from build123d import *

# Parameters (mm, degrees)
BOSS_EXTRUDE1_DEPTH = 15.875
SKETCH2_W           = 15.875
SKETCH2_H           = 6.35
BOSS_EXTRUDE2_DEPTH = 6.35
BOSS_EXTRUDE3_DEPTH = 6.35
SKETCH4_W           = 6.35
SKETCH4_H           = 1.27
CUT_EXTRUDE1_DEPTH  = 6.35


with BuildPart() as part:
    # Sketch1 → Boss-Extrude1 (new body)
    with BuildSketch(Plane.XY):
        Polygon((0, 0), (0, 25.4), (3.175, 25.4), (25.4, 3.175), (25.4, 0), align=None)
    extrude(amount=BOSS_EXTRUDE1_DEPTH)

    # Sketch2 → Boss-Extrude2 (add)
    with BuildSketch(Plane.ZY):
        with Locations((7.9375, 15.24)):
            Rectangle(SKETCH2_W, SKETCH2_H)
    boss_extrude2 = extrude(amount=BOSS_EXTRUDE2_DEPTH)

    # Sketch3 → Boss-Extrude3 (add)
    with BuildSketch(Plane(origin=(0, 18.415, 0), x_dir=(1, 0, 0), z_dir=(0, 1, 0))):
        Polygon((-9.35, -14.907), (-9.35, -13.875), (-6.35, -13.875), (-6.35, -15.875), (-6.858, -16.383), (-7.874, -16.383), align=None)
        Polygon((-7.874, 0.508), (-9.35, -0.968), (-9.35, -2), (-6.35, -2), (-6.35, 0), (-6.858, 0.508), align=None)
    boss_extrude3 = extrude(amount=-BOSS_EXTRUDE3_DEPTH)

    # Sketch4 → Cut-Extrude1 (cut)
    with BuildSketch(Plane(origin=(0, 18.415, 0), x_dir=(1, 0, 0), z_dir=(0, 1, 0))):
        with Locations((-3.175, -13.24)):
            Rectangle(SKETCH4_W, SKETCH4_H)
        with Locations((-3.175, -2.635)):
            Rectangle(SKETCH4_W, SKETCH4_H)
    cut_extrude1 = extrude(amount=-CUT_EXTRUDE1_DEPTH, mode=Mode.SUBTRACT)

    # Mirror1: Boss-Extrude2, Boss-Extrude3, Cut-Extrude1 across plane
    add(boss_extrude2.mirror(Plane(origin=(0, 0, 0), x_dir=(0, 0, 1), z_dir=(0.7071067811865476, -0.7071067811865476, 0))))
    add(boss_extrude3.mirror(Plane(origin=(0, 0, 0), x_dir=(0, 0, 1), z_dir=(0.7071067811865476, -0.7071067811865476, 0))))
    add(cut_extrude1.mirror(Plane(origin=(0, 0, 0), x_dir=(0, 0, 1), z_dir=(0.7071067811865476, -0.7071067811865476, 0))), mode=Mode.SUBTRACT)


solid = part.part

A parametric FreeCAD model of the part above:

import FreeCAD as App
import Part
import Sketcher
Q = App.Units.Quantity

doc = App.newDocument("Part")
body = doc.addObject("PartDesign::Body", "Body")

# Sketch on XY plane
sketch1 = body.newObject("Sketcher::SketchObject", "Sketch")
sketch1.AttachmentSupport = (doc.getObject("XY_Plane"), [""])
sketch1.MapMode = "FlatFace"
sketch1.addGeometry([
    Part.LineSegment(App.Vector(0, 25.4, 0), App.Vector(0, 0, 0)),  # 0
    Part.LineSegment(App.Vector(0, 0, 0), App.Vector(25.4, 0, 0)),  # 1
    Part.LineSegment(App.Vector(25.4, 0, 0), App.Vector(25.4, 3.2, 0)),  # 2
    Part.LineSegment(App.Vector(25.4, 3.2, 0), App.Vector(3.2, 25.4, 0)),  # 3
    Part.LineSegment(App.Vector(3.2, 25.4, 0), App.Vector(0, 25.4, 0)),  # 4
], False)
sketch1.addConstraint([
    Sketcher.Constraint("Coincident", 0, 2, 1, 1),
    Sketcher.Constraint("Coincident", 1, 2, 2, 1),
    Sketcher.Constraint("Coincident", 2, 2, 3, 1),
    Sketcher.Constraint("Coincident", 3, 2, 4, 1),
    Sketcher.Constraint("Coincident", 4, 2, 0, 1),
    Sketcher.Constraint("Vertical", 0),
    Sketcher.Constraint("Horizontal", 1),
    Sketcher.Constraint("Vertical", 2),
    Sketcher.Constraint("Horizontal", 4),
    Sketcher.Constraint("Coincident", 0, 2, -1, 1),
    Sketcher.Constraint("Equal", 1, 0),
    Sketcher.Constraint("Equal", 4, 2),
    Sketcher.Constraint("DistanceX", 1, 1, 1, 2, Q("1 in")),
    Sketcher.Constraint("DistanceX", 4, 2, 4, 1, Q("0.125 in")),
])
pad1 = body.newObject("PartDesign::Pad", "Pad")
pad1.Profile = sketch1
pad1.Length = Q("0.625 in")

# Sketch on YZ plane
sketch2 = body.newObject("Sketcher::SketchObject", "Sketch001")
sketch2.AttachmentSupport = (doc.getObject("YZ_Plane"), [""])
sketch2.MapMode = "FlatFace"
sketch2.addGeometry([
    Part.LineSegment(App.Vector(18, 0, 0), App.Vector(12, 0, 0)),
    Part.LineSegment(App.Vector(12, 0, 0), App.Vector(12, 16, 0)),
    Part.LineSegment(App.Vector(12, 16, 0), App.Vector(18, 16, 0)),
    Part.LineSegment(App.Vector(18, 16, 0), App.Vector(18, 0, 0)),
], False)
sketch2.addConstraint([
    Sketcher.Constraint("Coincident", 0, 2, 1, 1),
    Sketcher.Constraint("Coincident", 1, 2, 2, 1),
    Sketcher.Constraint("Coincident", 2, 2, 3, 1),
    Sketcher.Constraint("Coincident", 3, 2, 0, 1),
    Sketcher.Constraint("Horizontal", 0),
    Sketcher.Constraint("Vertical", 1),
    Sketcher.Constraint("Horizontal", 2),
    Sketcher.Constraint("Vertical", 3),
    Sketcher.Constraint("PointOnObject", 0, 2, -1),
    Sketcher.Constraint("DistanceX", 0, 2, 0, 1, Q("0.25 in")),
    Sketcher.Constraint("DistanceY", 1, 1, 1, 2, Q("0.625 in")),
    Sketcher.Constraint("DistanceX", -1, 1, 0, 2, Q("0.475 in")),
])
pad2 = body.newObject("PartDesign::Pad", "Pad001")
pad2.Profile = sketch2
pad2.Length = Q("0.25 in")
pad2.Reversed = True

# Sketch on XZ plane
sketch3 = body.newObject("Sketcher::SketchObject", "Sketch002")
sketch3.AttachmentSupport = (doc.getObject("XZ_Plane"), [""])
sketch3.MapMode = "FlatFace"
sketch3.AttachmentOffset = App.Placement(App.Vector(0, 0, -0.725 * 25.4), App.Rotation())
sketch3.addGeometry([
    Part.LineSegment(App.Vector(-9.3, 13.9, 0), App.Vector(-9.3, 14.9, 0)),  # 0
    Part.LineSegment(App.Vector(-9.3, 14.9, 0), App.Vector(-7.9, 16.4, 0)),  # 1
    Part.LineSegment(App.Vector(-7.9, 16.4, 0), App.Vector(-6.9, 16.4, 0)),  # 2
    Part.LineSegment(App.Vector(-6.9, 16.4, 0), App.Vector(-6.3, 15.9, 0)),  # 3
    Part.LineSegment(App.Vector(-6.3, 15.9, 0), App.Vector(-6.3, 13.9, 0)),  # 4
    Part.LineSegment(App.Vector(-6.3, 13.9, 0), App.Vector(-9.3, 13.9, 0)),  # 5
    Part.LineSegment(App.Vector(-7.9, -0.5, 0), App.Vector(-9.3, 1, 0)),  # 6
    Part.LineSegment(App.Vector(-9.3, 1, 0), App.Vector(-9.3, 2, 0)),  # 7
    Part.LineSegment(App.Vector(-9.3, 2, 0), App.Vector(-6.3, 2, 0)),  # 8
    Part.LineSegment(App.Vector(-6.3, 2, 0), App.Vector(-6.3, 0, 0)),  # 9
    Part.LineSegment(App.Vector(-6.3, 0, 0), App.Vector(-6.9, -0.5, 0)),  # 10
    Part.LineSegment(App.Vector(-6.9, -0.5, 0), App.Vector(-7.9, -0.5, 0)),  # 11
], False)
sketch3.addConstraint([
    Sketcher.Constraint("Coincident", 0, 2, 1, 1),
    Sketcher.Constraint("Coincident", 1, 2, 2, 1),
    Sketcher.Constraint("Coincident", 2, 2, 3, 1),
    Sketcher.Constraint("Coincident", 3, 2, 4, 1),
    Sketcher.Constraint("Coincident", 4, 2, 5, 1),
    Sketcher.Constraint("Coincident", 5, 2, 0, 1),
    Sketcher.Constraint("Coincident", 6, 2, 7, 1),
    Sketcher.Constraint("Coincident", 7, 2, 8, 1),
    Sketcher.Constraint("Coincident", 8, 2, 9, 1),
    Sketcher.Constraint("Coincident", 9, 2, 10, 1),
    Sketcher.Constraint("Coincident", 10, 2, 11, 1),
    Sketcher.Constraint("Coincident", 11, 2, 6, 1),
    Sketcher.Constraint("Vertical", 0),
    Sketcher.Constraint("Horizontal", 2),
    Sketcher.Constraint("Vertical", 4),
    Sketcher.Constraint("Horizontal", 5),
    Sketcher.Constraint("Vertical", 7),
    Sketcher.Constraint("Horizontal", 8),
    Sketcher.Constraint("Vertical", 9),
    Sketcher.Constraint("Horizontal", 11),
    Sketcher.Constraint("PointOnObject", 9, 2, -1),
    Sketcher.Constraint("Perpendicular", 1, 3),
    Sketcher.Constraint("Parallel", 3, 6),
    Sketcher.Constraint("Perpendicular", 6, 10),
    Sketcher.Constraint("Vertical", 5, 2, 6, 2),
    Sketcher.Constraint("Vertical", 4, 2, 8, 2),
    Sketcher.Constraint("Vertical", 2, 2, 10, 2),
    Sketcher.Constraint("Vertical", 1, 2, 11, 2),
    Sketcher.Constraint("Equal", 0, 7),
    Sketcher.Constraint("Equal", 4, 9),
    Sketcher.Constraint("DistanceX", 2, 1, 2, 2, Q("0.04 in")),
    Sketcher.Constraint("DistanceX", 1, 2, -1, 1, Q("0.31 in")),
    Sketcher.Constraint("DistanceX", 3, 2, -1, 1, Q("0.25 in")),
    Sketcher.Constraint("DistanceY", -1, 1, 1, 2, Q("0.645 in")),
    Sketcher.Constraint("DistanceX", 5, 2, 5, 1, 3.0),
    Sketcher.Constraint("DistanceY", 0, 1, 0, 2, 1.032),
])
pad3 = body.newObject("PartDesign::Pad", "Pad002")
pad3.Profile = sketch3
pad3.Length = Q("0.25 in")

# Sketch on XZ plane
sketch4 = body.newObject("Sketcher::SketchObject", "Sketch003")
sketch4.AttachmentSupport = (doc.getObject("XZ_Plane"), [""])
sketch4.MapMode = "FlatFace"
sketch4.AttachmentOffset = App.Placement(App.Vector(0, 0, -0.725 * 25.4), App.Rotation())
sketch4.addGeometry([
    Part.LineSegment(App.Vector(-6.3, 12.6, 0), App.Vector(-6.3, 13.9, 0)),  # 0
    Part.LineSegment(App.Vector(-6.3, 13.9, 0), App.Vector(0, 13.9, 0)),  # 1
    Part.LineSegment(App.Vector(0, 13.9, 0), App.Vector(0, 12.6, 0)),  # 2
    Part.LineSegment(App.Vector(0, 12.6, 0), App.Vector(-6.3, 12.6, 0)),  # 3
    Part.LineSegment(App.Vector(-6.3, 2, 0), App.Vector(-6.3, 3.3, 0)),  # 4
    Part.LineSegment(App.Vector(-6.3, 3.3, 0), App.Vector(0, 3.3, 0)),  # 5
    Part.LineSegment(App.Vector(0, 3.3, 0), App.Vector(0, 2, 0)),  # 6
    Part.LineSegment(App.Vector(0, 2, 0), App.Vector(-6.3, 2, 0)),  # 7
], False)
sketch4.addConstraint([
    Sketcher.Constraint("Coincident", 0, 2, 1, 1),
    Sketcher.Constraint("Coincident", 1, 2, 2, 1),
    Sketcher.Constraint("Coincident", 2, 2, 3, 1),
    Sketcher.Constraint("Coincident", 3, 2, 0, 1),
    Sketcher.Constraint("Coincident", 4, 2, 5, 1),
    Sketcher.Constraint("Coincident", 5, 2, 6, 1),
    Sketcher.Constraint("Coincident", 6, 2, 7, 1),
    Sketcher.Constraint("Coincident", 7, 2, 4, 1),
    Sketcher.Constraint("Vertical", 0),
    Sketcher.Constraint("Horizontal", 1),
    Sketcher.Constraint("Vertical", 2),
    Sketcher.Constraint("Horizontal", 3),
    Sketcher.Constraint("Vertical", 4),
    Sketcher.Constraint("Horizontal", 5),
    Sketcher.Constraint("Vertical", 6),
    Sketcher.Constraint("Horizontal", 7),
    Sketcher.Constraint("PointOnObject", 1, 2, -2),
    Sketcher.Constraint("PointOnObject", 5, 2, -2),
    Sketcher.Constraint("Vertical", 3, 2, 4, 2),
    Sketcher.Constraint("Equal", 2, 4),
    Sketcher.Constraint("DistanceX", 1, 1, 1, 2, Q("0.25 in")),
    Sketcher.Constraint("DistanceY", 0, 1, 0, 2, Q("0.05 in")),
    Sketcher.Constraint("DistanceY", -1, 1, 0, 2, 13.875),
    Sketcher.Constraint("DistanceY", -1, 1, 4, 2, 3.27),
])
pocket1 = body.newObject("PartDesign::Pocket", "Pocket")
pocket1.Profile = sketch4
pocket1.Length = Q("0.25 in")
pocket1.Reversed = True
doc.recompute()

datumplane = body.newObject("PartDesign::Plane", "DatumPlane")
datumplane.Placement = App.Placement(App.Vector(0, 0, 0), App.Rotation(App.Vector(-0.707106781, -0.707106781, 0), App.Vector(0, 0, -1), App.Vector(0.707106781, -0.707106781, 0), "ZXY"))
mirrored = body.newObject("PartDesign::Mirrored", "Mirrored")
mirrored.Originals = [pad2, pad3, pocket1]
mirrored.MirrorPlane = (datumplane, [""])
body.Tip = mirrored

doc.recompute()
